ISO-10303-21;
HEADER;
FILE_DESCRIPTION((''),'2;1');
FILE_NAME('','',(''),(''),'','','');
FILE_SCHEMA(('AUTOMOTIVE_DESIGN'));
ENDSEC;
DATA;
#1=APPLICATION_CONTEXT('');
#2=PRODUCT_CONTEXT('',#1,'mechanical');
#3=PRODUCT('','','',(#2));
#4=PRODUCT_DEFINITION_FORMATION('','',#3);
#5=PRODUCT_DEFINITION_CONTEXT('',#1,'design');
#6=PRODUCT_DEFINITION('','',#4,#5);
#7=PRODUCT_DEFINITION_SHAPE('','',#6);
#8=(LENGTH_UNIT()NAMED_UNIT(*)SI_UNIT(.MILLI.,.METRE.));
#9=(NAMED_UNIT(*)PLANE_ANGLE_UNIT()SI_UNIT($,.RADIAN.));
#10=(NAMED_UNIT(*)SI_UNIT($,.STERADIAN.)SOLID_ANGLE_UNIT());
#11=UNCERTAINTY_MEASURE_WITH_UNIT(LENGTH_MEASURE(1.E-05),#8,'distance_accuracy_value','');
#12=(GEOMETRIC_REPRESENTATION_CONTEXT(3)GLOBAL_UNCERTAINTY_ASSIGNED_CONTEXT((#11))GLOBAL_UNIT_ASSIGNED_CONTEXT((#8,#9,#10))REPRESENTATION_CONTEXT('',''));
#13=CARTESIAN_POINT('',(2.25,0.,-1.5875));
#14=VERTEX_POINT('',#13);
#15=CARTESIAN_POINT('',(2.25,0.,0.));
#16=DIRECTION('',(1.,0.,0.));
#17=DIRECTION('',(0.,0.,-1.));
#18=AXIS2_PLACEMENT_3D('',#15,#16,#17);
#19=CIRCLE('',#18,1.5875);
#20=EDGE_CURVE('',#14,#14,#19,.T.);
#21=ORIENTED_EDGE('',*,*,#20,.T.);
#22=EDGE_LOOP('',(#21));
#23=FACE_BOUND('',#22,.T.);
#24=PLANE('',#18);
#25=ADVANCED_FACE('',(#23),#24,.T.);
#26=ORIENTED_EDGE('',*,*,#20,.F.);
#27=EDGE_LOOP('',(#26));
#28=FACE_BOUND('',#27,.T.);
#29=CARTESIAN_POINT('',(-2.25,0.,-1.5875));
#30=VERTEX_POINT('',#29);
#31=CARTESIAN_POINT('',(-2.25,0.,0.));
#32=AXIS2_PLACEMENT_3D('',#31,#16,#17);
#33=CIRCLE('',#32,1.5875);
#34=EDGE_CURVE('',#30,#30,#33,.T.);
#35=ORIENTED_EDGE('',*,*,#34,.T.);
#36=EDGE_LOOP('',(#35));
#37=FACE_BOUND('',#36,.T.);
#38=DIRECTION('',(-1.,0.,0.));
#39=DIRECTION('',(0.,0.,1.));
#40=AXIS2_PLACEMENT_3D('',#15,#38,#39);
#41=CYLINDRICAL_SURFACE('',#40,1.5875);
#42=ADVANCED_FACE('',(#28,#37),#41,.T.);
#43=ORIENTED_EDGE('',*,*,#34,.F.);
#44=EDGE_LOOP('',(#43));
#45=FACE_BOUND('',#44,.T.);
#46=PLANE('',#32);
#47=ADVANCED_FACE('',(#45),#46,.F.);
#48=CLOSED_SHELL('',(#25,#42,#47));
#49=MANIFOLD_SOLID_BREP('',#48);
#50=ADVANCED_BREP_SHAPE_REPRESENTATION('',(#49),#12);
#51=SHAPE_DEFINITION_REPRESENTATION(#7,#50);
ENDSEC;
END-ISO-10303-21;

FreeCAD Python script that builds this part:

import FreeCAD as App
import Part
import Sketcher
from FreeCAD import Vector
Q = App.Units.Quantity

doc = App.newDocument("Part")
body = doc.addObject("PartDesign::Body", "Body")

# Sketch on YZ plane
sketch1 = body.newObject("Sketcher::SketchObject", "Sketch")
sketch1.AttachmentSupport = (doc.getObject("YZ_Plane"), [""])
sketch1.MapMode = "FlatFace"
sketch1.addGeometry(Part.Circle(Vector(0, 0, 0), Vector(0, 0, 1), 1.6), False)
sketch1.addConstraint([
    Sketcher.Constraint("Coincident", 0, 3, -1, 1),
    Sketcher.Constraint("Diameter", 0, Q("0.125 in")),
])
pad1 = body.newObject("PartDesign::Pad", "Pad")
pad1.Profile = sketch1
pad1.Length = 4.5
pad1.Midplane = True

doc.recompute()
